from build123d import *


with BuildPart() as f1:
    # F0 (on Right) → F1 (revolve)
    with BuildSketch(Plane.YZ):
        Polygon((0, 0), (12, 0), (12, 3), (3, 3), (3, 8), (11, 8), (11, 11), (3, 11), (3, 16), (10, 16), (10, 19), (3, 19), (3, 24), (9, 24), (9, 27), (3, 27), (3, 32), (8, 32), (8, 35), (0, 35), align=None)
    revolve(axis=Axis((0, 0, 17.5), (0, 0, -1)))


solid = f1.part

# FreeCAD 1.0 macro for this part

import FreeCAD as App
import Part
import Sketcher

V = App.Vector
Q = App.Units.Quantity


def add_polygon(sketch, points):
    """Adds a closed chain of lines whose ends are joined by coincident constraints."""
    first, n = sketch.GeometryCount, len(points)
    for a, b in zip(points, points[1:] + points[:1]):
        sketch.addGeometry(Part.LineSegment(App.Vector(*a, 0), App.Vector(*b, 0)), False)
    for i in range(n):
        sketch.addConstraint(Sketcher.Constraint("Coincident", first + i, 2, first + (i + 1) % n, 1))

doc = App.newDocument("Part")
body = doc.addObject("PartDesign::Body", "Body")

# Sketch on YZ plane
sketch1 = doc.addObject("Sketcher::SketchObject", "Sketch")
body.addObject(sketch1)
sketch1.AttachmentSupport = (doc.YZ_Plane, [""])
sketch1.MapMode = "FlatFace"
add_polygon(sketch1, [(0, 0), (12, 0), (12, 3), (3, 3), (3, 8), (11, 8), (11, 11), (3, 11), (3, 16), (10, 16), (10, 19), (3, 19), (3, 24), (9, 24), (9, 27), (3, 27), (3, 32), (8, 32), (8, 35), (0, 35)])  # lines 0-19
sketch1.addConstraint([
    Sketcher.Constraint("Horizontal", 0),
    Sketcher.Constraint("Vertical", 1),
    Sketcher.Constraint("Horizontal", 2),
    Sketcher.Constraint("Vertical", 3),
    Sketcher.Constraint("Horizontal", 4),
    Sketcher.Constraint("Vertical", 5),
    Sketcher.Constraint("Horizontal", 6),
    Sketcher.Constraint("Vertical", 7),
    Sketcher.Constraint("Horizontal", 8),
    Sketcher.Constraint("Vertical", 9),
    Sketcher.Constraint("Horizontal", 10),
    Sketcher.Constraint("Vertical", 11),
    Sketcher.Constraint("Horizontal", 12),
    Sketcher.Constraint("Vertical", 13),
    Sketcher.Constraint("Horizontal", 14),
    Sketcher.Constraint("Vertical", 15),
    Sketcher.Constraint("Horizontal", 16),
    Sketcher.Constraint("Vertical", 17),
    Sketcher.Constraint("Horizontal", 18),
    Sketcher.Constraint("Vertical", 19),
    Sketcher.Constraint("Coincident", 19, 2, -1, 1),
    Sketcher.Constraint("Vertical", 3, 2, 6, 2),
    Sketcher.Constraint("Vertical", 7, 2, 10, 2),
    Sketcher.Constraint("Vertical", 11, 2, 14, 2),
    Sketcher.Constraint("Equal", 6, 18),
    Sketcher.Constraint("Equal", 16, 3),
    Sketcher.Constraint("Equal", 1, 5),
    Sketcher.Constraint("Equal", 3, 7),
    Sketcher.Constraint("Equal", 5, 9),
    Sketcher.Constraint("Equal", 7, 11),
    Sketcher.Constraint("Equal", 9, 13),
    Sketcher.Constraint("Equal", 11, 15),
    Sketcher.Constraint("Equal", 13, 17),
    Sketcher.Constraint("DistanceX", 0, 1, 0, 2, Q("12 mm")),
    Sketcher.Constraint("DistanceX", 2, 2, 2, 1, Q("9 mm")),
    Sketcher.Constraint("DistanceX", 4, 1, 4, 2, Q("8 mm")),
    Sketcher.Constraint("DistanceX", 8, 1, 8, 2, Q("7 mm")),
    Sketcher.Constraint("DistanceX", 12, 1, 12, 2, Q("6 mm")),
    Sketcher.Constraint("DistanceY", 1, 1, 1, 2, Q("3 mm")),
])
revolution = doc.addObject("PartDesign::Revolution", "Revolution")
body.addObject(revolution)
revolution.Profile = sketch1
revolution.ReferenceAxis = (sketch1, ["V_Axis"])
revolution.Angle = 360

doc.recompute()
